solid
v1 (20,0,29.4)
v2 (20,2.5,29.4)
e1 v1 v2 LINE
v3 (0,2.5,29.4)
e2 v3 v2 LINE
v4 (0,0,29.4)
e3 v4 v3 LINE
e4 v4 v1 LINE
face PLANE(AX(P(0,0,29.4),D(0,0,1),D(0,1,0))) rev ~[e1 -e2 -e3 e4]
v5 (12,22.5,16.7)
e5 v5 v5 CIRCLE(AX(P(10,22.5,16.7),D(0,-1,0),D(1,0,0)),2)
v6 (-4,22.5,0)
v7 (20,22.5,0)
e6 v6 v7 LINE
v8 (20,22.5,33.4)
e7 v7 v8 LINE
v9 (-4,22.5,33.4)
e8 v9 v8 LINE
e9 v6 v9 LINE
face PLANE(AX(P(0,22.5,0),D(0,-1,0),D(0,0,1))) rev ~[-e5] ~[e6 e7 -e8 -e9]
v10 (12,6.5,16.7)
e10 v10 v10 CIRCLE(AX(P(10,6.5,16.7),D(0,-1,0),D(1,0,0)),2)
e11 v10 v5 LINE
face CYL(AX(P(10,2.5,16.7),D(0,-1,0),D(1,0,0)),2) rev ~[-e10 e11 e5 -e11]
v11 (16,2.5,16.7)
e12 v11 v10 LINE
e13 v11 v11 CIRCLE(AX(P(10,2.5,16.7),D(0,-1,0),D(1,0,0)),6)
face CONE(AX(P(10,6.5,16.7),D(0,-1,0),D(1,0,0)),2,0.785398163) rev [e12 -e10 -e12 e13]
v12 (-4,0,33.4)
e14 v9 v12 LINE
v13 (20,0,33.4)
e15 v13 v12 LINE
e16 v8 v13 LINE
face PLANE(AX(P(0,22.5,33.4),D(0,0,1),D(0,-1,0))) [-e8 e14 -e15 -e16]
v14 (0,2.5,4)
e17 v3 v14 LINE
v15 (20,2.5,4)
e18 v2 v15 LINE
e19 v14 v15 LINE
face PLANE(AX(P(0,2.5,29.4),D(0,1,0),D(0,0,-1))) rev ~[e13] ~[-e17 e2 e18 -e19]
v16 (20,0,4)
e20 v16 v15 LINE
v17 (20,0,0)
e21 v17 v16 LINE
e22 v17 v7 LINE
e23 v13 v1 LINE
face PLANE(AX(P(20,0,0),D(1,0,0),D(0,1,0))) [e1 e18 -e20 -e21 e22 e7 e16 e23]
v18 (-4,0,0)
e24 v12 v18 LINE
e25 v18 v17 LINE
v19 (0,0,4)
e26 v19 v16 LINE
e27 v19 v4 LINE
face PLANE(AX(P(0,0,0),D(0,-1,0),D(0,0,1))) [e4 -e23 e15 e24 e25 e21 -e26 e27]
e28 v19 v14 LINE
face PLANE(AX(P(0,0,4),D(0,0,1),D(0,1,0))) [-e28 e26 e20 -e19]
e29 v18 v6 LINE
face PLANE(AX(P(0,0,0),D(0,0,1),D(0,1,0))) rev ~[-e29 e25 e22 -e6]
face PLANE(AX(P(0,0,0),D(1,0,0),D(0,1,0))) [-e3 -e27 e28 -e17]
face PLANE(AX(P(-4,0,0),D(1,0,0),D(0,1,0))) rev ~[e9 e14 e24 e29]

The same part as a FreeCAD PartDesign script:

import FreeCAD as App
import Part
import Sketcher
from FreeCAD import Vector


def edges_at(feature, points):
    """Names of the edges that pass closest to the given points."""
    edges = feature.Shape.Edges
    near = lambda p: min(range(len(edges)), key=lambda i: edges[i].distToShape(Part.Vertex(*p))[0])
    return sorted({f"Edge{near(p) + 1}" for p in points})


def add_polygon(sketch, points):
    """Adds a closed chain of lines whose ends are joined by coincident constraints."""
    first, n = sketch.GeometryCount, len(points)
    for a, b in zip(points, points[1:] + points[:1]):
        sketch.addGeometry(Part.LineSegment(App.Vector(*a, 0), App.Vector(*b, 0)), False)
    for i in range(n):
        sketch.addConstraint(Sketcher.Constraint("Coincident", first + i, 2, first + (i + 1) % n, 1))

doc = App.newDocument("Part")
params = doc.addObject("Spreadsheet::Sheet", "Params")
for row, (alias, value) in enumerate([
    ("sketch1_height", "4 mm"),
    ("sketch1_width", "2.5 mm"),
    ("sketch1_height2", "25.4 mm"),
    ("pad1_length", "20 mm"),
    ("sketch2_width", "22.5 mm"),
    ("sketch2_height", "33.4 mm"),
    ("pad2_length", "4 mm"),
    ("sketch3_diameter", "4 mm"),
    ("pocket1_length", "20 mm"),
    ("chamfer_size", "4 mm"),
], start=1):
    params.set(f"A{row}", alias)
    params.set(f"B{row}", "=" + value)
    params.setAlias(f"B{row}", alias)

body = doc.addObject("PartDesign::Body", "Body")

# Sketch on YZ plane
sketch1 = body.newObject("Sketcher::SketchObject", "Sketch")
sketch1.AttachmentSupport = (doc.getObject("YZ_Plane"), [""])
sketch1.MapMode = "FlatFace"
add_polygon(sketch1, [(0, 4), (0, 0), (22.5, 0), (22.5, 33.4), (0, 33.4), (0, 29.4), (2.5, 29.4), (2.5, 4)])  # lines 0-7
sketch1.addConstraint([
    Sketcher.Constraint("Vertical", 0),
    Sketcher.Constraint("Horizontal", 1),
    Sketcher.Constraint("Vertical", 2),
    Sketcher.Constraint("Horizontal", 3),
    Sketcher.Constraint("Vertical", 4),
    Sketcher.Constraint("Horizontal", 5),
    Sketcher.Constraint("Vertical", 6),
    Sketcher.Constraint("Horizontal", 7),
    Sketcher.Constraint("Coincident", 0, 2, -1, 1),
    Sketcher.Constraint("PointOnObject", 3, 2, -2),
    Sketcher.Constraint("Equal", 0, 4),
    Sketcher.Constraint("DistanceY", 0, 2, 0, 1, 4.0),
    Sketcher.Constraint("DistanceX", 5, 1, 5, 2, 2.5),
    Sketcher.Constraint("DistanceY", 6, 2, 6, 1, 25.4),
    Sketcher.Constraint("DistanceX", 5, 2, 2, 2, 20.0),
])
sketch1.setExpression("Constraints[19]", "Params.sketch1_height")
sketch1.setExpression("Constraints[20]", "Params.sketch1_width")
sketch1.setExpression("Constraints[21]", "Params.sketch1_height2")
pad1 = body.newObject("PartDesign::Pad", "Pad")
pad1.Profile = sketch1
pad1.setExpression("Length", "Params.pad1_length")

# Sketch on YZ plane
sketch2 = body.newObject("Sketcher::SketchObject", "Sketch001")
sketch2.AttachmentSupport = (doc.getObject("YZ_Plane"), [""])
sketch2.MapMode = "FlatFace"
add_polygon(sketch2, [(0, 0), (22, 0), (22, 33), (0, 33)])  # lines 0-3
sketch2.addConstraint([
    Sketcher.Constraint("Horizontal", 0),
    Sketcher.Constraint("Vertical", 1),
    Sketcher.Constraint("Horizontal", 2),
    Sketcher.Constraint("Vertical", 3),
    Sketcher.Constraint("Coincident", 3, 2, -1, 1),
    Sketcher.Constraint("DistanceX", 0, 1, 0, 2, 22.5),
    Sketcher.Constraint("DistanceY", 1, 1, 1, 2, 33.4),
])
sketch2.setExpression("Constraints[9]", "Params.sketch2_width")
sketch2.setExpression("Constraints[10]", "Params.sketch2_height")
pad2 = body.newObject("PartDesign::Pad", "Pad001")
pad2.Profile = sketch2
pad2.setExpression("Length", "Params.pad2_length")
pad2.Reversed = True

# Sketch on XZ plane
sketch3 = body.newObject("Sketcher::SketchObject", "Sketch002")
sketch3.AttachmentSupport = (doc.getObject("XZ_Plane"), [""])
sketch3.MapMode = "FlatFace"
sketch3.AttachmentOffset = App.Placement(Vector(0, 0, -2.5), App.Rotation())
sketch3.addGeometry(Part.Circle(Vector(10, 16.7, 0), Vector(0, 0, 1), 2), False)
sketch3.addConstraint([
    Sketcher.Constraint("Diameter", 0, 4.0),
    Sketcher.Constraint("DistanceX", -1, 1, 0, 3, 10.0),
    Sketcher.Constraint("DistanceY", -1, 1, 0, 3, 16.7),
])
sketch3.setExpression("Constraints[0]", "Params.sketch3_diameter")
pocket1 = body.newObject("PartDesign::Pocket", "Pocket")
pocket1.Profile = sketch3
pocket1.setExpression("Length", "Params.pocket1_length")
doc.recompute()

chamfer = body.newObject("PartDesign::Chamfer", "Chamfer")
chamfer.Base = (pocket1, edges_at(pocket1, [(8.135, 2.5, 17.423)]))
chamfer.setExpression("Size", "Params.chamfer_size")

doc.recompute()
